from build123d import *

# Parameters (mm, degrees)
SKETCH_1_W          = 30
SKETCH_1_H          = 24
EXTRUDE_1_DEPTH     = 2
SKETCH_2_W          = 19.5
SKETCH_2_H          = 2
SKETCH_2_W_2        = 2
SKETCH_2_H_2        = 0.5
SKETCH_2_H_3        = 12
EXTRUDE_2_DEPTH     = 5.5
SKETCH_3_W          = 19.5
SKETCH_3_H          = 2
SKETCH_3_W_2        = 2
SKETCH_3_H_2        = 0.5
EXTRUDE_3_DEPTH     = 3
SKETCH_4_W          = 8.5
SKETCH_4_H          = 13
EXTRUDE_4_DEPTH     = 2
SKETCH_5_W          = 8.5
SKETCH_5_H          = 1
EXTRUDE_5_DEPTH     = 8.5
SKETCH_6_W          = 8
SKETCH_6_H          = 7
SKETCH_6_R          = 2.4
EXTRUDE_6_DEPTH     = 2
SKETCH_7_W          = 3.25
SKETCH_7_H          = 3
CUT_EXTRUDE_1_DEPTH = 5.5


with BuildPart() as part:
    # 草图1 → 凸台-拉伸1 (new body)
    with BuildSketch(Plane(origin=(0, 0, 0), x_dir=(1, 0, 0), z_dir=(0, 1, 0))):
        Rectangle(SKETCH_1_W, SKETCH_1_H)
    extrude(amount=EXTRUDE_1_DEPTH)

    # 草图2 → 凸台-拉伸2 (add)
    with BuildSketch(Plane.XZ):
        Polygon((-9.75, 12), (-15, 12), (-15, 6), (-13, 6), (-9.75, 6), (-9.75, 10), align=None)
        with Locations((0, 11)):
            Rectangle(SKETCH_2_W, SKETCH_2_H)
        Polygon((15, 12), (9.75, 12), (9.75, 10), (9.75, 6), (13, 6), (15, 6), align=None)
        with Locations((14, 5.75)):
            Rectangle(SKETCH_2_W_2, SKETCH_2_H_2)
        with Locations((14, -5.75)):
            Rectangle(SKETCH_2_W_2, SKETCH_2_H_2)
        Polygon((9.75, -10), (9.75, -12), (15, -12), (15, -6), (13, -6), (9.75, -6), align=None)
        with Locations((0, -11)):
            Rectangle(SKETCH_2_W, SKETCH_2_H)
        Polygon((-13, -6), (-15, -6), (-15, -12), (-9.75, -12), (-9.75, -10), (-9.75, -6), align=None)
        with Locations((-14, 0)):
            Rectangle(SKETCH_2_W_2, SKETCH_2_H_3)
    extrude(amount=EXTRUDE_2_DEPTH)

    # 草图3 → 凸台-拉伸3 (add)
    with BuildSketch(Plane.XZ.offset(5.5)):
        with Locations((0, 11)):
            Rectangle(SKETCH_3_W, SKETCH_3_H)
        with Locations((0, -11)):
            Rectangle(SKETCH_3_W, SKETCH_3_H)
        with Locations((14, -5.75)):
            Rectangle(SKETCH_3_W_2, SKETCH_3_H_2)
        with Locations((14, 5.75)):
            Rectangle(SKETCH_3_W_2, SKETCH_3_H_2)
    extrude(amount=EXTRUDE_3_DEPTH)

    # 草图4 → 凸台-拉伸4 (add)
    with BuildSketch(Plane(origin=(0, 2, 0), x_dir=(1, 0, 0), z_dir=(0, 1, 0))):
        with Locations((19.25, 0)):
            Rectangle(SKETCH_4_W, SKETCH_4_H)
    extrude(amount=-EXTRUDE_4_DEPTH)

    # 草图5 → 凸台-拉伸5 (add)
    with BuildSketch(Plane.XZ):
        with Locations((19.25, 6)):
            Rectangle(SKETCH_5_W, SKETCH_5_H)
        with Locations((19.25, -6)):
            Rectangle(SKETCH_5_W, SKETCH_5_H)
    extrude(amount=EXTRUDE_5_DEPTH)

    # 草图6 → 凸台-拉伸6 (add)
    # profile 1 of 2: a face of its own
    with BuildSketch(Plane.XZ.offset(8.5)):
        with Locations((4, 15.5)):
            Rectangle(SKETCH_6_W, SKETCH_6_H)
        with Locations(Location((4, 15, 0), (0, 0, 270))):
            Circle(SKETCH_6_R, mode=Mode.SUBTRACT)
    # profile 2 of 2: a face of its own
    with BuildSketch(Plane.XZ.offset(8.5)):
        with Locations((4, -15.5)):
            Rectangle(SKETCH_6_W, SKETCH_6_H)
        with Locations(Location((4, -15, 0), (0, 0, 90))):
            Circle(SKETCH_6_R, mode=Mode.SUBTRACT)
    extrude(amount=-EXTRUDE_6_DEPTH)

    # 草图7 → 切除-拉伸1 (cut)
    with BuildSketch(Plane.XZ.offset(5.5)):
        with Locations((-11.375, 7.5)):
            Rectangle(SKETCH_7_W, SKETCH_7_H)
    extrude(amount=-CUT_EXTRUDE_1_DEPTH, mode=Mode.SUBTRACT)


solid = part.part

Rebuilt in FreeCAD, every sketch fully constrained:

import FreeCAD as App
import Part
import Sketcher

V = App.Vector

doc = App.newDocument("Part")
body = doc.addObject("PartDesign::Body", "Body")

sketch1 = body.newObject("Sketcher::SketchObject", "Sketch")
sketch1.AttachmentSupport = (doc.getObject("XZ_Plane"), [""])
sketch1.MapMode = "FlatFace"
sketch1.addGeometry([
    Part.LineSegment(V(-15, -12, 0), V(-15, 12, 0)),
    Part.LineSegment(V(-15, 12, 0), V(15, 12, 0)),
    Part.LineSegment(V(15, 12, 0), V(15, -12, 0)),
    Part.LineSegment(V(15, -12, 0), V(-15, -12, 0)),
], False)
sketch1.addConstraint([
    Sketcher.Constraint("Coincident", 0, 2, 1, 1),
    Sketcher.Constraint("Coincident", 1, 2, 2, 1),
    Sketcher.Constraint("Coincident", 2, 2, 3, 1),
    Sketcher.Constraint("Coincident", 3, 2, 0, 1),
    Sketcher.Constraint("Vertical", 0),
    Sketcher.Constraint("Horizontal", 1),
    Sketcher.Constraint("Vertical", 2),
    Sketcher.Constraint("Horizontal", 3),
    Sketcher.Constraint("Symmetric", 0, 2, 2, 2, -1, 1),
    Sketcher.Constraint("DistanceX", 1, 1, 1, 2, 30.0),
    Sketcher.Constraint("DistanceY", 0, 1, 0, 2, 24.0),
])
pad1 = body.newObject("PartDesign::Pad", "Pad")
pad1.Profile = sketch1
pad1.Length = 2
pad1.Reversed = True

sketch2 = body.newObject("Sketcher::SketchObject", "Sketch001")
sketch2.AttachmentSupport = (doc.getObject("XZ_Plane"), [""])
sketch2.MapMode = "FlatFace"
sketch2.addGeometry([
    Part.LineSegment(V(-15, 12, 0), V(-15, -12, 0)),
    Part.LineSegment(V(-15, -12, 0), V(15, -12, 0)),
    Part.LineSegment(V(15, -12, 0), V(15, -5.5, 0)),
    Part.LineSegment(V(15, -5.5, 0), V(13, -5.5, 0)),
    Part.LineSegment(V(13, -5.5, 0), V(13, -6, 0)),
    Part.LineSegment(V(13, -6, 0), V(9.75, -6, 0)),
    Part.LineSegment(V(9.75, -6, 0), V(9.75, -10, 0)),
    Part.LineSegment(V(9.75, -10, 0), V(-9.75, -10, 0)),
    Part.LineSegment(V(-9.75, -10, 0), V(-9.75, -6, 0)),
    Part.LineSegment(V(-9.75, -6, 0), V(-13, -6, 0)),
    Part.LineSegment(V(-13, -6, 0), V(-13, 6, 0)),
    Part.LineSegment(V(-13, 6, 0), V(-9.75, 6, 0)),
    Part.LineSegment(V(-9.75, 6, 0), V(-9.75, 10, 0)),
    Part.LineSegment(V(-9.75, 10, 0), V(9.75, 10, 0)),
    Part.LineSegment(V(9.75, 10, 0), V(9.75, 6, 0)),
    Part.LineSegment(V(9.75, 6, 0), V(13, 6, 0)),
    Part.LineSegment(V(13, 6, 0), V(13, 5.5, 0)),
    Part.LineSegment(V(13, 5.5, 0), V(15, 5.5, 0)),
    Part.LineSegment(V(15, 5.5, 0), V(15, 12, 0)),
    Part.LineSegment(V(15, 12, 0), V(-15, 12, 0)),
], False)
sketch2.addConstraint([
    Sketcher.Constraint("Coincident", 0, 2, 1, 1),
    Sketcher.Constraint("Coincident", 1, 2, 2, 1),
    Sketcher.Constraint("Coincident", 2, 2, 3, 1),
    Sketcher.Constraint("Coincident", 3, 2, 4, 1),
    Sketcher.Constraint("Coincident", 4, 2, 5, 1),
    Sketcher.Constraint("Coincident", 5, 2, 6, 1),
    Sketcher.Constraint("Coincident", 6, 2, 7, 1),
    Sketcher.Constraint("Coincident", 7, 2, 8, 1),
    Sketcher.Constraint("Coincident", 8, 2, 9, 1),
    Sketcher.Constraint("Coincident", 9, 2, 10, 1),
    Sketcher.Constraint("Coincident", 10, 2, 11, 1),
    Sketcher.Constraint("Coincident", 11, 2, 12, 1),
    Sketcher.Constraint("Coincident", 12, 2, 13, 1),
    Sketcher.Constraint("Coincident", 13, 2, 14, 1),
    Sketcher.Constraint("Coincident", 14, 2, 15, 1),
    Sketcher.Constraint("Coincident", 15, 2, 16, 1),
    Sketcher.Constraint("Coincident", 16, 2, 17, 1),
    Sketcher.Constraint("Coincident", 17, 2, 18, 1),
    Sketcher.Constraint("Coincident", 18, 2, 19, 1),
    Sketcher.Constraint("Coincident", 19, 2, 0, 1),
    Sketcher.Constraint("Vertical", 0),
    Sketcher.Constraint("Horizontal", 1),
    Sketcher.Constraint("Vertical", 2),
    Sketcher.Constraint("Horizontal", 3),
    Sketcher.Constraint("Vertical", 4),
    Sketcher.Constraint("Horizontal", 5),
    Sketcher.Constraint("Vertical", 6),
    Sketcher.Constraint("Horizontal", 7),
    Sketcher.Constraint("Vertical", 8),
    Sketcher.Constraint("Horizontal", 9),
    Sketcher.Constraint("Vertical", 10),
    Sketcher.Constraint("Horizontal", 11),
    Sketcher.Constraint("Vertical", 12),
    Sketcher.Constraint("Horizontal", 13),
    Sketcher.Constraint("Vertical", 14),
    Sketcher.Constraint("Horizontal", 15),
    Sketcher.Constraint("Vertical", 16),
    Sketcher.Constraint("Horizontal", 17),
    Sketcher.Constraint("Vertical", 18),
    Sketcher.Constraint("Horizontal", 19),
    Sketcher.Constraint("Symmetric", 4, 2, 10, 2, -1, 1),
    Sketcher.Constraint("Symmetric", 6, 2, 12, 2, -1, 1),
    Sketcher.Constraint("Symmetric", 8, 2, 14, 2, -1, 1),
    Sketcher.Constraint("Symmetric", 0, 2, 18, 2, -1, 1),
    Sketcher.Constraint("Symmetric", 5, 2, 8, 2, -2),
    Sketcher.Constraint("Symmetric", 3, 2, 16, 2, -1),
    Sketcher.Constraint("Vertical", 2, 2, 17, 2),
    Sketcher.Constraint("DistanceX", 1, 1, 1, 2, 30.0),
    Sketcher.Constraint("DistanceX", 3, 2, 3, 1, 2.0),
    Sketcher.Constraint("DistanceY", 0, 2, 0, 1, 24.0),
    Sketcher.Constraint("DistanceY", 6, 2, 6, 1, 4.0),
    Sketcher.Constraint("DistanceY", 10, 1, 10, 2, 12.0),
    Sketcher.Constraint("DistanceX", 7, 2, 7, 1, 19.5),
    Sketcher.Constraint("DistanceY", 2, 1, 2, 2, 6.5),
])
pad2 = body.newObject("PartDesign::Pad", "Pad001")
pad2.Profile = sketch2
pad2.Length = 5.5

sketch3 = body.newObject("Sketcher::SketchObject", "Sketch002")
sketch3.AttachmentSupport = (doc.getObject("XZ_Plane"), [""])
sketch3.MapMode = "FlatFace"
sketch3.AttachmentOffset = App.Placement(V(0, 0, 5.5), App.Rotation())
sketch3.addGeometry([
    Part.LineSegment(V(-9.75, 12, 0), V(-9.75, 10, 0)),
    Part.LineSegment(V(-9.75, 10, 0), V(9.75, 10, 0)),
    Part.LineSegment(V(9.75, 10, 0), V(9.75, 12, 0)),
    Part.LineSegment(V(9.75, 12, 0), V(-9.75, 12, 0)),
    Part.LineSegment(V(-9.75, -10, 0), V(-9.75, -12, 0)),
    Part.LineSegment(V(-9.75, -12, 0), V(9.75, -12, 0)),
    Part.LineSegment(V(9.75, -12, 0), V(9.75, -10, 0)),
    Part.LineSegment(V(9.75, -10, 0), V(-9.75, -10, 0)),
    Part.LineSegment(V(13, -5.5, 0), V(13, -6, 0)),
    Part.LineSegment(V(13, -6, 0), V(15, -6, 0)),
    Part.LineSegment(V(15, -6, 0), V(15, -5.5, 0)),
    Part.LineSegment(V(15, -5.5, 0), V(13, -5.5, 0)),
    Part.LineSegment(V(13, 6, 0), V(13, 5.5, 0)),
    Part.LineSegment(V(13, 5.5, 0), V(15, 5.5, 0)),
    Part.LineSegment(V(15, 5.5, 0), V(15, 6, 0)),
    Part.LineSegment(V(15, 6, 0), V(13, 6, 0)),
], False)
sketch3.addConstraint([
    Sketcher.Constraint("Coincident", 0, 2, 1, 1),
    Sketcher.Constraint("Coincident", 1, 2, 2, 1),
    Sketcher.Constraint("Coincident", 2, 2, 3, 1),
    Sketcher.Constraint("Coincident", 3, 2, 0, 1),
    Sketcher.Constraint("Coincident", 4, 2, 5, 1),
    Sketcher.Constraint("Coincident", 5, 2, 6, 1),
    Sketcher.Constraint("Coincident", 6, 2, 7, 1),
    Sketcher.Constraint("Coincident", 7, 2, 4, 1),
    Sketcher.Constraint("Coincident", 8, 2, 9, 1),
    Sketcher.Constraint("Coincident", 9, 2, 10, 1),
    Sketcher.Constraint("Coincident", 10, 2, 11, 1),
    Sketcher.Constraint("Coincident", 11, 2, 8, 1),
    Sketcher.Constraint("Coincident", 12, 2, 13, 1),
    Sketcher.Constraint("Coincident", 13, 2, 14, 1),
    Sketcher.Constraint("Coincident", 14, 2, 15, 1),
    Sketcher.Constraint("Coincident", 15, 2, 12, 1),
    Sketcher.Constraint("Vertical", 0),
    Sketcher.Constraint("Horizontal", 1),
    Sketcher.Constraint("Vertical", 2),
    Sketcher.Constraint("Horizontal", 3),
    Sketcher.Constraint("Vertical", 4),
    Sketcher.Constraint("Horizontal", 5),
    Sketcher.Constraint("Vertical", 6),
    Sketcher.Constraint("Horizontal", 7),
    Sketcher.Constraint("Vertical", 8),
    Sketcher.Constraint("Horizontal", 9),
    Sketcher.Constraint("Vertical", 10),
    Sketcher.Constraint("Horizontal", 11),
    Sketcher.Constraint("Vertical", 12),
    Sketcher.Constraint("Horizontal", 13),
    Sketcher.Constraint("Vertical", 14),
    Sketcher.Constraint("Horizontal", 15),
    Sketcher.Constraint("Symmetric", 2, 2, 4, 2, -1, 1),
    Sketcher.Constraint("Symmetric", 0, 2, 6, 2, -1, 1),
    Sketcher.Constraint("Symmetric", 11, 2, 12, 2, -1),
    Sketcher.Constraint("Symmetric", 9, 2, 14, 2, -1),
    Sketcher.Constraint("Vertical", 3, 2, 4, 2),
    Sketcher.Constraint("Equal", 15, 0),
    Sketcher.Constraint("DistanceX", 9, 1, 9, 2, 2.0),
    Sketcher.Constraint("DistanceX", 1, 1, 1, 2, 19.5),
    Sketcher.Constraint("DistanceY", 8, 2, 8, 1, 0.5),
    Sketcher.Constraint("DistanceY", -1, 1, 0, 2, 10.0),
    Sketcher.Constraint("DistanceX", -1, 1, 8, 2, 13.0),
    Sketcher.Constraint("DistanceY", 8, 2, -1, 1, 6.0),
])
pad3 = body.newObject("PartDesign::Pad", "Pad002")
pad3.Profile = sketch3
pad3.Length = 3

sketch4 = body.newObject("Sketcher::SketchObject", "Sketch003")
sketch4.AttachmentSupport = (doc.getObject("XZ_Plane"), [""])
sketch4.MapMode = "FlatFace"
sketch4.AttachmentOffset = App.Placement(V(0, 0, -2), App.Rotation())
sketch4.addGeometry([
    Part.LineSegment(V(15, -6.5, 0), V(15, 6.5, 0)),
    Part.LineSegment(V(15, 6.5, 0), V(23.5, 6.5, 0)),
    Part.LineSegment(V(23.5, 6.5, 0), V(23.5, -6.5, 0)),
    Part.LineSegment(V(23.5, -6.5, 0), V(15, -6.5, 0)),
], False)
sketch4.addConstraint([
    Sketcher.Constraint("Coincident", 0, 2, 1, 1),
    Sketcher.Constraint("Coincident", 1, 2, 2, 1),
    Sketcher.Constraint("Coincident", 2, 2, 3, 1),
    Sketcher.Constraint("Coincident", 3, 2, 0, 1),
    Sketcher.Constraint("Vertical", 0),
    Sketcher.Constraint("Horizontal", 1),
    Sketcher.Constraint("Vertical", 2),
    Sketcher.Constraint("Horizontal", 3),
    Sketcher.Constraint("DistanceY", 0, 1, 0, 2, 13.0),
    Sketcher.Constraint("DistanceX", 1, 1, 1, 2, 8.5),
    Sketcher.Constraint("DistanceX", -1, 1, 0, 2, 15.0),
    Sketcher.Constraint("DistanceY", -1, 1, 0, 2, 6.5),
])
pad4 = body.newObject("PartDesign::Pad", "Pad003")
pad4.Profile = sketch4
pad4.Length = 2

sketch5 = body.newObject("Sketcher::SketchObject", "Sketch004")
sketch5.AttachmentSupport = (doc.getObject("XZ_Plane"), [""])
sketch5.MapMode = "FlatFace"
sketch5.addGeometry([
    Part.LineSegment(V(15, 6.5, 0), V(15, 5.5, 0)),
    Part.LineSegment(V(15, 5.5, 0), V(23.5, 5.5, 0)),
    Part.LineSegment(V(23.5, 5.5, 0), V(23.5, 6.5, 0)),
    Part.LineSegment(V(23.5, 6.5, 0), V(15, 6.5, 0)),
    Part.LineSegment(V(15, -5.5, 0), V(15, -6.5, 0)),
    Part.LineSegment(V(15, -6.5, 0), V(23.5, -6.5, 0)),
    Part.LineSegment(V(23.5, -6.5, 0), V(23.5, -5.5, 0)),
    Part.LineSegment(V(23.5, -5.5, 0), V(15, -5.5, 0)),
], False)
sketch5.addConstraint([
    Sketcher.Constraint("Coincident", 0, 2, 1, 1),
    Sketcher.Constraint("Coincident", 1, 2, 2, 1),
    Sketcher.Constraint("Coincident", 2, 2, 3, 1),
    Sketcher.Constraint("Coincident", 3, 2, 0, 1),
    Sketcher.Constraint("Coincident", 4, 2, 5, 1),
    Sketcher.Constraint("Coincident", 5, 2, 6, 1),
    Sketcher.Constraint("Coincident", 6, 2, 7, 1),
    Sketcher.Constraint("Coincident", 7, 2, 4, 1),
    Sketcher.Constraint("Vertical", 0),
    Sketcher.Constraint("Horizontal", 1),
    Sketcher.Constraint("Vertical", 2),
    Sketcher.Constraint("Horizontal", 3),
    Sketcher.Constraint("Vertical", 4),
    Sketcher.Constraint("Horizontal", 5),
    Sketcher.Constraint("Vertical", 6),
    Sketcher.Constraint("Horizontal", 7),
    Sketcher.Constraint("Symmetric", 3, 2, 4, 2, -1),
    Sketcher.Constraint("Symmetric", 1, 2, 6, 2, -1),
    Sketcher.Constraint("DistanceY", 0, 2, 0, 1, 1.0),
    Sketcher.Constraint("DistanceX", 1, 1, 1, 2, 8.5),
    Sketcher.Constraint("DistanceX", -1, 1, 0, 2, 15.0),
    Sketcher.Constraint("DistanceY", 4, 2, 0, 2, 12.0),
])
pad5 = body.newObject("PartDesign::Pad", "Pad004")
pad5.Profile = sketch5
pad5.Length = 8.5

sketch6 = body.newObject("Sketcher::SketchObject", "Sketch005")
sketch6.AttachmentSupport = (doc.getObject("XZ_Plane"), [""])
sketch6.MapMode = "FlatFace"
sketch6.AttachmentOffset = App.Placement(V(0, 0, 8.5), App.Rotation())
sketch6.addGeometry([
    Part.LineSegment(V(0, 19, 0), V(0, 12, 0)),
    Part.LineSegment(V(0, 12, 0), V(8, 12, 0)),
    Part.LineSegment(V(8, 12, 0), V(8, 19, 0)),
    Part.LineSegment(V(8, 19, 0), V(0, 19, 0)),
    Part.Circle(V(4, 15, 0), V(0, 0, 1), 2.4),
    Part.LineSegment(V(0, -12, 0), V(0, -19, 0)),
    Part.LineSegment(V(0, -19, 0), V(8, -19, 0)),
    Part.LineSegment(V(8, -19, 0), V(8, -12, 0)),
    Part.LineSegment(V(8, -12, 0), V(0, -12, 0)),
    Part.Circle(V(4, -15, 0), V(0, 0, 1), 2.4),
], False)
sketch6.addConstraint([
    Sketcher.Constraint("Coincident", 0, 2, 1, 1),
    Sketcher.Constraint("Coincident", 1, 2, 2, 1),
    Sketcher.Constraint("Coincident", 2, 2, 3, 1),
    Sketcher.Constraint("Coincident", 3, 2, 0, 1),
    Sketcher.Constraint("Coincident", 5, 2, 6, 1),
    Sketcher.Constraint("Coincident", 6, 2, 7, 1),
    Sketcher.Constraint("Coincident", 7, 2, 8, 1),
    Sketcher.Constraint("Coincident", 8, 2, 5, 1),
    Sketcher.Constraint("Vertical", 0),
    Sketcher.Constraint("Horizontal", 1),
    Sketcher.Constraint("Vertical", 2),
    Sketcher.Constraint("Horizontal", 3),
    Sketcher.Constraint("Vertical", 5),
    Sketcher.Constraint("Horizontal", 6),
    Sketcher.Constraint("Vertical", 7),
    Sketcher.Constraint("Horizontal", 8),
    Sketcher.Constraint("Equal", 4, 9),
    Sketcher.Constraint("Symmetric", 3, 2, 5, 2, -1, 1),
    Sketcher.Constraint("Symmetric", 4, 3, 9, 3, -1),
    Sketcher.Constraint("Symmetric", 1, 2, 7, 2, -1),
    Sketcher.Constraint("PointOnObject", 0, 2, -2),
    Sketcher.Constraint("Diameter", 4, 4.8),
    Sketcher.Constraint("DistanceX", 1, 1, 1, 2, 8.0),
    Sketcher.Constraint("DistanceY", 0, 2, 0, 1, 7.0),
    Sketcher.Constraint("DistanceX", -1, 1, 4, 3, 4.0),
    Sketcher.Constraint("DistanceY", -1, 1, 4, 3, 15.0),
    Sketcher.Constraint("DistanceY", -1, 1, 0, 2, 12.0),
])
pad6 = body.newObject("PartDesign::Pad", "Pad005")
pad6.Profile = sketch6
pad6.Length = 2
pad6.Reversed = True

sketch7 = body.newObject("Sketcher::SketchObject", "Sketch006")
sketch7.AttachmentSupport = (doc.getObject("XZ_Plane"), [""])
sketch7.MapMode = "FlatFace"
sketch7.AttachmentOffset = App.Placement(V(0, 0, 5.5), App.Rotation())
sketch7.addGeometry([
    Part.LineSegment(V(-13, 9, 0), V(-13, 6, 0)),
    Part.LineSegment(V(-13, 6, 0), V(-9.75, 6, 0)),
    Part.LineSegment(V(-9.75, 6, 0), V(-9.75, 9, 0)),
    Part.LineSegment(V(-9.75, 9, 0), V(-13, 9, 0)),
], False)
sketch7.addConstraint([
    Sketcher.Constraint("Coincident", 0, 2, 1, 1),
    Sketcher.Constraint("Coincident", 1, 2, 2, 1),
    Sketcher.Constraint("Coincident", 2, 2, 3, 1),
    Sketcher.Constraint("Coincident", 3, 2, 0, 1),
    Sketcher.Constraint("Vertical", 0),
    Sketcher.Constraint("Horizontal", 1),
    Sketcher.Constraint("Vertical", 2),
    Sketcher.Constraint("Horizontal", 3),
    Sketcher.Constraint("DistanceY", 0, 2, 0, 1, 3.0),
    Sketcher.Constraint("DistanceX", 0, 2, -1, 1, 13.0),
    Sketcher.Constraint("DistanceY", -1, 1, 0, 2, 6.0),
    Sketcher.Constraint("DistanceX", 1, 1, 1, 2, 3.25),
])
pocket1 = body.newObject("PartDesign::Pocket", "Pocket")
pocket1.Profile = sketch7
pocket1.Length = 5.5

doc.recompute()
